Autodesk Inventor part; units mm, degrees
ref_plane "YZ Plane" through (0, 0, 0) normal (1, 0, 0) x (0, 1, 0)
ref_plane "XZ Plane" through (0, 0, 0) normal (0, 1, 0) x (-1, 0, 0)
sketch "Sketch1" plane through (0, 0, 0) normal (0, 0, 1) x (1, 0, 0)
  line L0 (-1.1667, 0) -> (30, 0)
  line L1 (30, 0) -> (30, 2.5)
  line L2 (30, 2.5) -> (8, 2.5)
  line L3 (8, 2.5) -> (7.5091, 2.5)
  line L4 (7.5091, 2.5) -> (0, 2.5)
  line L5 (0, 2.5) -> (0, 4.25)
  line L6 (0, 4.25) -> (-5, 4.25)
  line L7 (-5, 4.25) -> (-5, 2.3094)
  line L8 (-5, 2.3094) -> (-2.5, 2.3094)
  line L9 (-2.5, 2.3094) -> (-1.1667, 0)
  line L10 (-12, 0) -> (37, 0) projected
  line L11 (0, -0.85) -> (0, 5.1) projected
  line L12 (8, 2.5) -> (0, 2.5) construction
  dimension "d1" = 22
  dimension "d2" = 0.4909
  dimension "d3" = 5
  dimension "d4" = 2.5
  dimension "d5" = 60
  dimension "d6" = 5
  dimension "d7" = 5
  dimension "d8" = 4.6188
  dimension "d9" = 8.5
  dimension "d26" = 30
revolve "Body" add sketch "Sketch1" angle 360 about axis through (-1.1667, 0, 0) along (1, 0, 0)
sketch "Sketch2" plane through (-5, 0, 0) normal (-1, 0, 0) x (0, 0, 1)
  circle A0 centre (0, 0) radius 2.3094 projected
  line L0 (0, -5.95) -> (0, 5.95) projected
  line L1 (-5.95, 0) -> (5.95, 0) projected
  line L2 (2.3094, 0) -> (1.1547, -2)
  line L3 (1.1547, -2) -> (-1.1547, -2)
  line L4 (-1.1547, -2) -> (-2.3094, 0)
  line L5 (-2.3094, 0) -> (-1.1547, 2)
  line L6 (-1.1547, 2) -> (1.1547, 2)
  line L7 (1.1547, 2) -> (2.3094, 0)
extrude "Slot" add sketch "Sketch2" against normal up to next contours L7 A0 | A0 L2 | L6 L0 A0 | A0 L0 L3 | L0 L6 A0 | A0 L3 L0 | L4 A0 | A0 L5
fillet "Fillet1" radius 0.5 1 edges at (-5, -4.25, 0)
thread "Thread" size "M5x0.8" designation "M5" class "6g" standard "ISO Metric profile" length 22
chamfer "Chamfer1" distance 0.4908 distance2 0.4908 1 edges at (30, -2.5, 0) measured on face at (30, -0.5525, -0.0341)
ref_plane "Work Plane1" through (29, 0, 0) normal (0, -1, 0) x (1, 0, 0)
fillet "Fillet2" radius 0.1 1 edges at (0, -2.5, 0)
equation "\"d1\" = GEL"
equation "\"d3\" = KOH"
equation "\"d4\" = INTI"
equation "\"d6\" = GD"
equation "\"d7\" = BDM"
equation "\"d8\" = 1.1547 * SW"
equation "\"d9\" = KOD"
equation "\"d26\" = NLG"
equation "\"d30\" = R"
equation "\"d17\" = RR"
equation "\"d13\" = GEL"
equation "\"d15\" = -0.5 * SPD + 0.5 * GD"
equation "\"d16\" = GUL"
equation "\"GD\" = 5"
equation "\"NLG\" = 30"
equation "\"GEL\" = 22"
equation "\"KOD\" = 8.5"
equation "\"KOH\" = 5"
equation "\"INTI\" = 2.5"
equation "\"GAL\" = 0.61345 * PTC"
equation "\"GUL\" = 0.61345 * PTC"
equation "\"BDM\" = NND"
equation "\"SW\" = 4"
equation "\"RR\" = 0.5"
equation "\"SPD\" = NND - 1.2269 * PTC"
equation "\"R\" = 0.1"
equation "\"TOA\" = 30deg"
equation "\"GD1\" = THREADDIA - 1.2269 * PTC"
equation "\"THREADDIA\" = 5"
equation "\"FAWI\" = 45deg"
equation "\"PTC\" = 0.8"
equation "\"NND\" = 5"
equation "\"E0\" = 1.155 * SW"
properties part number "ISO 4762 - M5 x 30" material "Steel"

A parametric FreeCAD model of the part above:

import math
import FreeCAD as App
import Part
import Sketcher
Q = App.Units.Quantity


def edges_at(feature, points):
    """Names of the edges that pass closest to the given points."""
    edges = feature.Shape.Edges
    near = lambda p: min(range(len(edges)), key=lambda i: edges[i].distToShape(Part.Vertex(*p))[0])
    return sorted({f"Edge{near(p) + 1}" for p in points})

doc = App.newDocument("Part")
body = doc.addObject("PartDesign::Body", "Body")

# Sketch on XY plane
sketch1 = body.newObject("Sketcher::SketchObject", "Sketch")
sketch1.AttachmentSupport = (doc.getObject("XY_Plane"), [""])
sketch1.MapMode = "FlatFace"
sketch1.addGeometry([
    Part.LineSegment(App.Vector(-2.5, 2.3, 0), App.Vector(-1.2, 0, 0)),  # 0
    Part.LineSegment(App.Vector(-1.2, 0, 0), App.Vector(30, 0, 0)),  # 1
    Part.LineSegment(App.Vector(30, 0, 0), App.Vector(30, 2.5, 0)),  # 2
    Part.LineSegment(App.Vector(30, 2.5, 0), App.Vector(0, 2.5, 0)),  # 3
    Part.LineSegment(App.Vector(0, 2.5, 0), App.Vector(0, 4.2, 0)),  # 4
    Part.LineSegment(App.Vector(0, 4.2, 0), App.Vector(-5, 4.2, 0)),  # 5
    Part.LineSegment(App.Vector(-5, 4.2, 0), App.Vector(-5, 2.3, 0)),  # 6
    Part.LineSegment(App.Vector(-5, 2.3, 0), App.Vector(-2.5, 2.3, 0)),  # 7
], False)
sketch1.addConstraint([
    Sketcher.Constraint("Coincident", 0, 2, 1, 1),
    Sketcher.Constraint("Coincident", 1, 2, 2, 1),
    Sketcher.Constraint("Coincident", 2, 2, 3, 1),
    Sketcher.Constraint("Coincident", 3, 2, 4, 1),
    Sketcher.Constraint("Coincident", 4, 2, 5, 1),
    Sketcher.Constraint("Coincident", 5, 2, 6, 1),
    Sketcher.Constraint("Coincident", 6, 2, 7, 1),
    Sketcher.Constraint("Coincident", 7, 2, 0, 1),
    Sketcher.Constraint("Horizontal", 1),
    Sketcher.Constraint("Vertical", 2),
    Sketcher.Constraint("Horizontal", 3),
    Sketcher.Constraint("Vertical", 4),
    Sketcher.Constraint("Horizontal", 5),
    Sketcher.Constraint("Vertical", 6),
    Sketcher.Constraint("Horizontal", 7),
    Sketcher.Constraint("PointOnObject", 0, 2, -1),
    Sketcher.Constraint("PointOnObject", 3, 2, -2),
    Sketcher.Constraint("Equal", 7, 2),
    Sketcher.Constraint("DistanceX", 3, 2, 3, 1, Q("30 mm")),
    Sketcher.Constraint("DistanceX", 5, 2, 5, 1, Q("5 mm")),
    Sketcher.Constraint("DistanceX", 7, 1, 7, 2, Q("2.5 mm")),
    Sketcher.Constraint("Angle", 0, Q("-60.0006 deg")),
    Sketcher.Constraint("DistanceY", 4, 1, 4, 2, Q("1.75 mm")),
    Sketcher.Constraint("DistanceX", 1, 1, 1, 2, Q("31.1667 mm")),
])
revolution = body.newObject("PartDesign::Revolution", "Revolution")
revolution.Profile = sketch1
revolution.ReferenceAxis = (sketch1, ["H_Axis"])
revolution.Angle = 360

# Sketch on YZ plane
sketch2 = body.newObject("Sketcher::SketchObject", "Sketch001")
sketch2.AttachmentSupport = (doc.getObject("YZ_Plane"), [""])
sketch2.MapMode = "FlatFace"
sketch2.AttachmentOffset = App.Placement(App.Vector(0, 0, -5), App.Rotation())
sketch2.addGeometry([
    Part.LineSegment(App.Vector(2, 1.2, 0), App.Vector(0, 2.3, 0)),  # 0
    Part.ArcOfCircle(Part.Circle(App.Vector(0, 0, 0), App.Vector(0, 0, 1), 2.3), math.radians(30), math.radians(90)),  # 1
    Part.ArcOfCircle(Part.Circle(App.Vector(0, 0, 0), App.Vector(0, 0, 1), 2.3), math.radians(90), math.radians(150)),  # 2
    Part.LineSegment(App.Vector(0, 2.3, 0), App.Vector(-2, 1.2, 0)),  # 3
    Part.ArcOfCircle(Part.Circle(App.Vector(0, 0, 0), App.Vector(0, 0, 1), 2.3), math.radians(-30), math.radians(30)),  # 4
    Part.LineSegment(App.Vector(2, -1.2, 0), App.Vector(2, 1.2, 0)),  # 5
    Part.LineSegment(App.Vector(-2, 1.2, 0), App.Vector(-2, -1.2, 0)),  # 6
    Part.ArcOfCircle(Part.Circle(App.Vector(0, 0, 0), App.Vector(0, 0, 1), 2.3), math.radians(150), math.radians(210)),  # 7
    Part.LineSegment(App.Vector(-2, -1.2, 0), App.Vector(0, -2.3, 0)),  # 8
    Part.ArcOfCircle(Part.Circle(App.Vector(0, 0, 0), App.Vector(0, 0, 1), 2.3), math.radians(-150), math.radians(-90)),  # 9
    Part.ArcOfCircle(Part.Circle(App.Vector(0, 0, 0), App.Vector(0, 0, 1), 2.3), math.radians(-90), math.radians(-30)),  # 10
    Part.LineSegment(App.Vector(0, -2.3, 0), App.Vector(2, -1.2, 0)),  # 11
], False)
sketch2.addConstraint([
    Sketcher.Constraint("Coincident", 0, 1, 1, 1),
    Sketcher.Constraint("Coincident", 1, 2, 0, 2),
    Sketcher.Constraint("Coincident", 2, 1, 3, 1),
    Sketcher.Constraint("Coincident", 3, 2, 2, 2),
    Sketcher.Constraint("Coincident", 4, 1, 5, 1),
    Sketcher.Constraint("Coincident", 5, 2, 4, 2),
    Sketcher.Constraint("Coincident", 6, 1, 7, 1),
    Sketcher.Constraint("Coincident", 7, 2, 6, 2),
    Sketcher.Constraint("Coincident", 8, 1, 9, 1),
    Sketcher.Constraint("Coincident", 9, 2, 8, 2),
    Sketcher.Constraint("Coincident", 10, 1, 11, 1),
    Sketcher.Constraint("Coincident", 11, 2, 10, 2),
    Sketcher.Constraint("Vertical", 5),
    Sketcher.Constraint("Vertical", 6),
    Sketcher.Constraint("Coincident", 1, 3, -1, 1),
    Sketcher.Constraint("Coincident", 2, 3, -1, 1),
    Sketcher.Constraint("Coincident", 4, 3, -1, 1),
    Sketcher.Constraint("Coincident", 7, 3, -1, 1),
    Sketcher.Constraint("Coincident", 9, 3, -1, 1),
    Sketcher.Constraint("Coincident", 10, 3, -1, 1),
    Sketcher.Constraint("Coincident", 2, 1, 1, 2),
    Sketcher.Constraint("Coincident", 5, 2, 0, 1),
    Sketcher.Constraint("Coincident", 6, 1, 3, 2),
    Sketcher.Constraint("Coincident", 8, 1, 7, 2),
    Sketcher.Constraint("Coincident", 10, 1, 9, 2),
    Sketcher.Constraint("PointOnObject", 1, 2, -2),
    Sketcher.Constraint("PointOnObject", 9, 2, -2),
    Sketcher.Constraint("Parallel", 0, 8),
    Sketcher.Constraint("Parallel", 3, 11),
    Sketcher.Constraint("Angle", 0, Q("150 deg")),
    Sketcher.Constraint("DistanceX", -1, 1, 0, 1, Q("2 mm")),
])
pad1 = body.newObject("PartDesign::Pad", "Pad")
pad1.Profile = sketch2
pad1.Length = 2.6786
doc.recompute()

fillet = body.newObject("PartDesign::Fillet", "Fillet")
fillet.Base = (pad1, edges_at(pad1, [(-5, -4.25, 0)]))
fillet.Radius = 0.5
doc.recompute()

chamfer = body.newObject("PartDesign::Chamfer", "Chamfer")
chamfer.Base = (fillet, edges_at(fillet, [(30, -2.5, 0)]))
chamfer.ChamferType = "Two distances"
chamfer.Size = 0.4908
chamfer.Size2 = 0.4908
doc.recompute()

fillet2 = body.newObject("PartDesign::Fillet", "Fillet001")
fillet2.Base = (chamfer, edges_at(chamfer, [(0, -2.5, 0)]))
fillet2.Radius = 0.1

doc.recompute()
